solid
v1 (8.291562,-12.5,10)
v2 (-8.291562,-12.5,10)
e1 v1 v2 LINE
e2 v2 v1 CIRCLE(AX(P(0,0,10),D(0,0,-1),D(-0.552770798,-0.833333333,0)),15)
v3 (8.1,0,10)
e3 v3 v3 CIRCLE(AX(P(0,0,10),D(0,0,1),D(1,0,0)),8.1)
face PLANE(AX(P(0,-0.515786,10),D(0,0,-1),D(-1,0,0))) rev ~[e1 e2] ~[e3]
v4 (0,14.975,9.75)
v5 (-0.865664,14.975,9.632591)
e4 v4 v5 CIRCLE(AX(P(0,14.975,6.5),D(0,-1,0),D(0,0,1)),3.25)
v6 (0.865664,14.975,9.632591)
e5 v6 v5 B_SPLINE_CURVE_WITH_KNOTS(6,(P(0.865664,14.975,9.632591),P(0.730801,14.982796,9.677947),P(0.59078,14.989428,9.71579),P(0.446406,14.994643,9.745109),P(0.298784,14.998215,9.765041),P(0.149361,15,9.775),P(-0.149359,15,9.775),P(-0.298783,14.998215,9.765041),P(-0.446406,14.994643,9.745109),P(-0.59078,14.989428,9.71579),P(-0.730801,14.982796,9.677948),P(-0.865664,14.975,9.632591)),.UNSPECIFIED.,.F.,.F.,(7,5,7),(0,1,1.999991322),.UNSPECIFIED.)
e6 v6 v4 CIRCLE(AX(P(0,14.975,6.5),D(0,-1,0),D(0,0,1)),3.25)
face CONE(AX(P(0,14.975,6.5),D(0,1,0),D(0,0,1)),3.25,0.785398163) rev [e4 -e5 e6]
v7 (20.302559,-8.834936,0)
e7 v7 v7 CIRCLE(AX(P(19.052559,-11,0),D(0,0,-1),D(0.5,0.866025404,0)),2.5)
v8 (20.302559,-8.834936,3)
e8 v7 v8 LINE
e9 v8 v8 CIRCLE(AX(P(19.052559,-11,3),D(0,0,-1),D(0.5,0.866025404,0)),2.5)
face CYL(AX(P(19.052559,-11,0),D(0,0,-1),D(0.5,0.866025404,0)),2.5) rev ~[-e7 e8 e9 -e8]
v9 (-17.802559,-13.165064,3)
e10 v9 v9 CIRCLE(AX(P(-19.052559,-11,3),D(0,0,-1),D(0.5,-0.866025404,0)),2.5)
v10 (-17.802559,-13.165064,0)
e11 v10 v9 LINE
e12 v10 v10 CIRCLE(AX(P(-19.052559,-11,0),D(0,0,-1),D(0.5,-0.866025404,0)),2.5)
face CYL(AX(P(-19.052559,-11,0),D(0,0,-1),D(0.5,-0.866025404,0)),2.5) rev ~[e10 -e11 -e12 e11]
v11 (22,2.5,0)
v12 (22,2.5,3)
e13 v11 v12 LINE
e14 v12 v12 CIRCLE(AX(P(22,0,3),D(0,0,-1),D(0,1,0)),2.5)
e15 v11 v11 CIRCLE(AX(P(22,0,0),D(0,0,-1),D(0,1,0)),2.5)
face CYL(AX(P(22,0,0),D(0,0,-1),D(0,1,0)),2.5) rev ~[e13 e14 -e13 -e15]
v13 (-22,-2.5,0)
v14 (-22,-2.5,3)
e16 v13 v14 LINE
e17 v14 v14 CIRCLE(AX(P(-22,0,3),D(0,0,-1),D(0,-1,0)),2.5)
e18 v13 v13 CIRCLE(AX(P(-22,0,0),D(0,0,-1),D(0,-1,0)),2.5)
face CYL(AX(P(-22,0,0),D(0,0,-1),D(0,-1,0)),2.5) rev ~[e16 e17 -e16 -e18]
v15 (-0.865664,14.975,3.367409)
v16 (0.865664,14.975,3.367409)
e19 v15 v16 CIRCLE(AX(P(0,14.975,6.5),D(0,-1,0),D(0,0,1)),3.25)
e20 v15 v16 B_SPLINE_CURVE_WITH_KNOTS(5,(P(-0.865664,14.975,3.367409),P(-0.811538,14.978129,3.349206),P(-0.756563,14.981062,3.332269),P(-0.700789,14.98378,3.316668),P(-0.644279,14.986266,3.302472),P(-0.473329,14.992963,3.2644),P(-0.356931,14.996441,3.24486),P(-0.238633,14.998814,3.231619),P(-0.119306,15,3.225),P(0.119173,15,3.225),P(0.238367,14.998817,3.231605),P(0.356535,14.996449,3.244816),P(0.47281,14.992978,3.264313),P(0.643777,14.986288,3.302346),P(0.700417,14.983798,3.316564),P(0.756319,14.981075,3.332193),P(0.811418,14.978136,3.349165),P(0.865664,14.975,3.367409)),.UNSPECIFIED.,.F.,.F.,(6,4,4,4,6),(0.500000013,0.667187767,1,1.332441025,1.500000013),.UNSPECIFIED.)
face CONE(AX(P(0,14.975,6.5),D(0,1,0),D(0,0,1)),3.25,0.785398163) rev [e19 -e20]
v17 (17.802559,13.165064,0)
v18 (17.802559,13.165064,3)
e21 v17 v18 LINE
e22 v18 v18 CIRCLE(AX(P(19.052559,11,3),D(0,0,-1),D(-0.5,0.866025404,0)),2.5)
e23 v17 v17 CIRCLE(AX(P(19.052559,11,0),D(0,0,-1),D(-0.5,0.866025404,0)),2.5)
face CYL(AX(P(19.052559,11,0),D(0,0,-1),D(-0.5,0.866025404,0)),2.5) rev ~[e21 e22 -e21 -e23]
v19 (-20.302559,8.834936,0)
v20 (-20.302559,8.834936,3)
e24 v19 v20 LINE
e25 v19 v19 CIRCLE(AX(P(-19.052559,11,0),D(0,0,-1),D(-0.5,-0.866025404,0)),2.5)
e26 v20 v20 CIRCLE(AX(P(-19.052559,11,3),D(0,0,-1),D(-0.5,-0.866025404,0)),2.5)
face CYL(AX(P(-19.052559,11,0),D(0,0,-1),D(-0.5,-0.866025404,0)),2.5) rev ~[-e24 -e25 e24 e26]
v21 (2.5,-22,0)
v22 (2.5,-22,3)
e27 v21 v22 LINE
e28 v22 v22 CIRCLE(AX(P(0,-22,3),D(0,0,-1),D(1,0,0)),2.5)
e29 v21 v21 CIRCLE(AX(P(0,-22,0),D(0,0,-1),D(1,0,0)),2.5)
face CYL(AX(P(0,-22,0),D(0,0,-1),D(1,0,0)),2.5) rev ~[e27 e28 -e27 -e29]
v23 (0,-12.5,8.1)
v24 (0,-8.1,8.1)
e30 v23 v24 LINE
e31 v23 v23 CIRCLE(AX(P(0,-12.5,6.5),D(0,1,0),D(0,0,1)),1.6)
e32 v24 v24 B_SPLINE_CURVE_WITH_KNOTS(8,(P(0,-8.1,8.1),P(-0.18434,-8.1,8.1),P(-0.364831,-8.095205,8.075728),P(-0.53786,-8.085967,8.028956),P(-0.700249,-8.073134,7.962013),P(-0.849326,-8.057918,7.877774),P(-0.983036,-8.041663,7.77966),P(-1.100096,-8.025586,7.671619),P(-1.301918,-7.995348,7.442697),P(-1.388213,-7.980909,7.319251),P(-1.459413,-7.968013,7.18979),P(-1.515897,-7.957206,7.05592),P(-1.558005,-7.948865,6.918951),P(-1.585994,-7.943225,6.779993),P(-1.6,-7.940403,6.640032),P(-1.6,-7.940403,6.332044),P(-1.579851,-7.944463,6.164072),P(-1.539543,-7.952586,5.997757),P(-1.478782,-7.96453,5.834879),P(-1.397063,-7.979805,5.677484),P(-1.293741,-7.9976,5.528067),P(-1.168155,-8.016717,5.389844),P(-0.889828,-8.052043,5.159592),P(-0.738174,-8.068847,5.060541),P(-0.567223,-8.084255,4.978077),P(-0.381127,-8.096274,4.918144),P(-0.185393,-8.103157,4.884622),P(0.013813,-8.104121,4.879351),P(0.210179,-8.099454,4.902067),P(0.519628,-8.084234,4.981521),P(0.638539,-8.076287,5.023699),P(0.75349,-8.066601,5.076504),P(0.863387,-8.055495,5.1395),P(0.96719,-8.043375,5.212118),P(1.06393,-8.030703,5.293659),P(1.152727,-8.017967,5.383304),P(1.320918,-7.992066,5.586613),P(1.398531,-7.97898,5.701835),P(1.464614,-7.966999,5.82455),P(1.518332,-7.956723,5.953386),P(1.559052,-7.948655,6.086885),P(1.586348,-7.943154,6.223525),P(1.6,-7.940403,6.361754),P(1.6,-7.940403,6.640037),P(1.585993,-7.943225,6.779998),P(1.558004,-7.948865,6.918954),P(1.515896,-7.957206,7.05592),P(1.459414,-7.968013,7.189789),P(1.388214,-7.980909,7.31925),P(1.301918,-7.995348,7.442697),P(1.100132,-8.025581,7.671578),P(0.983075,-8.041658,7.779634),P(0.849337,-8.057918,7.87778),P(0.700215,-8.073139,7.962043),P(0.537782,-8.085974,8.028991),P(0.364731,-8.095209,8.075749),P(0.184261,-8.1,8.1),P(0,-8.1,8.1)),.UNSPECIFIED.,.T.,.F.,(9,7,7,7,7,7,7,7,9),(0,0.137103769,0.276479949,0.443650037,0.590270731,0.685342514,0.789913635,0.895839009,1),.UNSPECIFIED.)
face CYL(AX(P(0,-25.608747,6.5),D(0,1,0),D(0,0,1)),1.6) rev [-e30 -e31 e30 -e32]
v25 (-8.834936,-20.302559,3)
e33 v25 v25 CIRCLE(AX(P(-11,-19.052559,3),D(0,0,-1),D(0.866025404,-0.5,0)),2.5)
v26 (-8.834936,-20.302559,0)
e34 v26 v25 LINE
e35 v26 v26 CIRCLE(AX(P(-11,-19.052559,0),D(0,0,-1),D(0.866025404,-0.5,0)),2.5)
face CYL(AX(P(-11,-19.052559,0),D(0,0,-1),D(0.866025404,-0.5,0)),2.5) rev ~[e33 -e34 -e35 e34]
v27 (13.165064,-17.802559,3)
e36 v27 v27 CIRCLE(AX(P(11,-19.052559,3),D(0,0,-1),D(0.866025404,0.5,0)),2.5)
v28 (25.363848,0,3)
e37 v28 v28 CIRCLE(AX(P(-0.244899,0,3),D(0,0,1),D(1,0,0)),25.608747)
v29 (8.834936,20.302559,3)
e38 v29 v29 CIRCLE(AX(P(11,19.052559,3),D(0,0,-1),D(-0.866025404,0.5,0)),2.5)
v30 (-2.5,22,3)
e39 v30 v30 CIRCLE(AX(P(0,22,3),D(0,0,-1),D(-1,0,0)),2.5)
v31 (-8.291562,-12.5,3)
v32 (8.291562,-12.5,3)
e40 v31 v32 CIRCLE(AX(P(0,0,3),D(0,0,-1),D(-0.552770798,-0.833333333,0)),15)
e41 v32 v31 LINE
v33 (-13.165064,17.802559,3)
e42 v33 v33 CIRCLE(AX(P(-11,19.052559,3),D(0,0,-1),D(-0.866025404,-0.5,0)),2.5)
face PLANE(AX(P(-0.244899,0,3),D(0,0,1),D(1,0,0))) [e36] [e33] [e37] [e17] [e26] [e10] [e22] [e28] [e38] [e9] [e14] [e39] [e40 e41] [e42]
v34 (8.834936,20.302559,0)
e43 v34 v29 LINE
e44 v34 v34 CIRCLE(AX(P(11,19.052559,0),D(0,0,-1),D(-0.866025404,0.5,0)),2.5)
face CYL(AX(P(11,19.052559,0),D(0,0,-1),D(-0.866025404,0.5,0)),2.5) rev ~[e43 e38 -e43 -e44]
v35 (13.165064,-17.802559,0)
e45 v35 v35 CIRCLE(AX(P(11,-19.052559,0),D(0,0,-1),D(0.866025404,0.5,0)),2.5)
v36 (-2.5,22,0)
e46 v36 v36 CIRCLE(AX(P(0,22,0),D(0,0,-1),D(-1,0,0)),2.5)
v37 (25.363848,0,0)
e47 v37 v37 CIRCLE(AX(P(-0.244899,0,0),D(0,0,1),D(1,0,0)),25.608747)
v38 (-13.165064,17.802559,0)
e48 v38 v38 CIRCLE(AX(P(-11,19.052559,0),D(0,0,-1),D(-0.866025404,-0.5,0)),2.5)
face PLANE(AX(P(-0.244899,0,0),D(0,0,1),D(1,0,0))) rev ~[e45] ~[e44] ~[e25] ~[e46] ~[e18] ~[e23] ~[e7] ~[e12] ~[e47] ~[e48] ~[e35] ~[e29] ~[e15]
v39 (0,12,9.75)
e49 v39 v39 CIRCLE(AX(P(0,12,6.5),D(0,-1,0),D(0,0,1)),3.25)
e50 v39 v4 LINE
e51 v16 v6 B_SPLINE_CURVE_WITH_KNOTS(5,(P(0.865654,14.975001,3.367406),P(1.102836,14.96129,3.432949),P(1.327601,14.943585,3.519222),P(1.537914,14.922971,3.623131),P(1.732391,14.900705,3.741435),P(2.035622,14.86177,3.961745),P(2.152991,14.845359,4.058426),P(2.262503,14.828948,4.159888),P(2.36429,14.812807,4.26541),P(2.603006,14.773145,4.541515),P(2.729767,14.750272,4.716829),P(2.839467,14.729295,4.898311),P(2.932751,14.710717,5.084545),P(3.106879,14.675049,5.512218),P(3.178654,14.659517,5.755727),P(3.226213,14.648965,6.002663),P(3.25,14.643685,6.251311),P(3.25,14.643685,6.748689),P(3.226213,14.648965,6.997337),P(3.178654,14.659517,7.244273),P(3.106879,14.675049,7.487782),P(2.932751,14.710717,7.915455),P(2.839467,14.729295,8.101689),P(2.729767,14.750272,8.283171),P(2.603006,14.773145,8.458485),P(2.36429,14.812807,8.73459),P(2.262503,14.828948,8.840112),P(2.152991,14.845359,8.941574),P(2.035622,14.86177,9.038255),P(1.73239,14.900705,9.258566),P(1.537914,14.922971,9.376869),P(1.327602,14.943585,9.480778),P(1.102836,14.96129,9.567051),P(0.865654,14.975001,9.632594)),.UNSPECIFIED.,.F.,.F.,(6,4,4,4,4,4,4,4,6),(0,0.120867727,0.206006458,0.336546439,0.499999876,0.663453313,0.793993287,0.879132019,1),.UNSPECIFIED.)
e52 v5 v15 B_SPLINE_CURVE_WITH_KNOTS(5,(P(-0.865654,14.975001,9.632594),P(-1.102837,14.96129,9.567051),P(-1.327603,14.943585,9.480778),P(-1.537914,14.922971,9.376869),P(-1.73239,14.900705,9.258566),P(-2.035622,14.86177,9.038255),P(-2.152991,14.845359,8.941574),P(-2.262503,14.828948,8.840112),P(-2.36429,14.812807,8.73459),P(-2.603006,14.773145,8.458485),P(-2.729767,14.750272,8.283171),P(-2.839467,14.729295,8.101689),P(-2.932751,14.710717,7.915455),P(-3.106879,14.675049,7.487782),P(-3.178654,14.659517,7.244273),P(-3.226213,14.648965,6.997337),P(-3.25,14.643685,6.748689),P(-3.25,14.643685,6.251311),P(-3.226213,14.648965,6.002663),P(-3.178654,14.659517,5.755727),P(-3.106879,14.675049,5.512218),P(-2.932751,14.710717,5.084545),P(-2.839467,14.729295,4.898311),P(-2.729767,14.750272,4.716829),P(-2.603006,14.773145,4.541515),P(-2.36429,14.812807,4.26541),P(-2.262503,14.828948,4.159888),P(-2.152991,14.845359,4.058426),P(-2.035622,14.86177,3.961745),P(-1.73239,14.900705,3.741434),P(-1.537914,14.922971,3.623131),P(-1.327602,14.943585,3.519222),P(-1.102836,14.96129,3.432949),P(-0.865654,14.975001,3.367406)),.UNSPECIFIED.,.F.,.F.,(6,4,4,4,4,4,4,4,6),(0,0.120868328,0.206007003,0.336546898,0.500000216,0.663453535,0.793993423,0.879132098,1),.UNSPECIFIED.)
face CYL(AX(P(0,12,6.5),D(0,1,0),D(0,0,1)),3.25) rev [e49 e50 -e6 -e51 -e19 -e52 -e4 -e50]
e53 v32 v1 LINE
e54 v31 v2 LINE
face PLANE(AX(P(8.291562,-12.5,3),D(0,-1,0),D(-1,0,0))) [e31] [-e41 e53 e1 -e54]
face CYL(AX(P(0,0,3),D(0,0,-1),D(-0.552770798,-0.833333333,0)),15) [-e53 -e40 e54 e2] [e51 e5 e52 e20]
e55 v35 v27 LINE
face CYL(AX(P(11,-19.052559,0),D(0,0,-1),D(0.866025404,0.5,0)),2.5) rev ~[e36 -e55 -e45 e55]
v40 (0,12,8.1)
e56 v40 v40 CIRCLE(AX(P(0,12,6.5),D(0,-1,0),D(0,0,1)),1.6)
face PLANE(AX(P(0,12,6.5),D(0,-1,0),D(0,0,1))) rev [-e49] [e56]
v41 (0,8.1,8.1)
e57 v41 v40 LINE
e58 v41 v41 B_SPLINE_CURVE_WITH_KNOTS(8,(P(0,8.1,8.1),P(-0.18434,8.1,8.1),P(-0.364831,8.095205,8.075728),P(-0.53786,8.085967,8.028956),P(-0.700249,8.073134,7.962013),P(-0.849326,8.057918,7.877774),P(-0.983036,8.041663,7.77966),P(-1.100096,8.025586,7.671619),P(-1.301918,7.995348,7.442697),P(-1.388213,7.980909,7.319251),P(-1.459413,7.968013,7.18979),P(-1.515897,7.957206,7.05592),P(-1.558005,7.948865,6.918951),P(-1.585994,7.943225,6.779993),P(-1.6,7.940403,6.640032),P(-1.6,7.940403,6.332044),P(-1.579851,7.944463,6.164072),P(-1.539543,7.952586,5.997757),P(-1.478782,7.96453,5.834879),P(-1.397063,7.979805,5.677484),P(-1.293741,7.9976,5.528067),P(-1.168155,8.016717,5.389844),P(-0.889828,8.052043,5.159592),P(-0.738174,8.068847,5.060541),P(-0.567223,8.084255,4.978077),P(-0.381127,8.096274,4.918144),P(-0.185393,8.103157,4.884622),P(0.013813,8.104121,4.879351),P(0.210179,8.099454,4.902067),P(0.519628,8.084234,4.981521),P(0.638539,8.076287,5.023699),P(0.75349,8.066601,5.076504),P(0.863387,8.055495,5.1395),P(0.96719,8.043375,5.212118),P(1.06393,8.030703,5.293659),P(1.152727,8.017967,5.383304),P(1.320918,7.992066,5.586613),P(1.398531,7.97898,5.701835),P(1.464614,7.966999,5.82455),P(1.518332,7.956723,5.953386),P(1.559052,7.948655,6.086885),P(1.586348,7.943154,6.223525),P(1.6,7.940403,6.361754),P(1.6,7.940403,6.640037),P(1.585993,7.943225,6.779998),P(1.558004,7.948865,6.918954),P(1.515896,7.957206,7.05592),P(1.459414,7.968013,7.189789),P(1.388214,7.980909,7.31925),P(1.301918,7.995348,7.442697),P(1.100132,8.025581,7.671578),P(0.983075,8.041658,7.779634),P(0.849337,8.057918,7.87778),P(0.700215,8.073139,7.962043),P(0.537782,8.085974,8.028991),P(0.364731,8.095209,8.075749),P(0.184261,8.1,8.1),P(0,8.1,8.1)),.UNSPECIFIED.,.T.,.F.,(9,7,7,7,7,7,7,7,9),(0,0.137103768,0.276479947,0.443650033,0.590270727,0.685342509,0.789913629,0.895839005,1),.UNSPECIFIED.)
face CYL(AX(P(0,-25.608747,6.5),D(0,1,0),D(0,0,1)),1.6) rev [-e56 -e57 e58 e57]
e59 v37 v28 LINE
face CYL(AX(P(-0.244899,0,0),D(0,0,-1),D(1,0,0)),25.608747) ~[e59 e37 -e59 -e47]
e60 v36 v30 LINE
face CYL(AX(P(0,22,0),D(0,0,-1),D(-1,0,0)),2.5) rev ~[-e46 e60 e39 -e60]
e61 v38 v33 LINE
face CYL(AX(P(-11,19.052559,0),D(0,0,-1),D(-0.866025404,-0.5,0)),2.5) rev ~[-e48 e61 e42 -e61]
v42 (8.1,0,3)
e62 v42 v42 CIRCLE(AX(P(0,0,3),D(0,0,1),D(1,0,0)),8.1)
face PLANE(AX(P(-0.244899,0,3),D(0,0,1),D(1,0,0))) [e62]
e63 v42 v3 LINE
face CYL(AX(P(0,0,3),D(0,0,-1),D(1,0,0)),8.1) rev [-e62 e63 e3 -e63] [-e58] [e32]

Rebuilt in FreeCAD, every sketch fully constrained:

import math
import FreeCAD as App
import Part
import Sketcher
Q = App.Units.Quantity


def add_polygon(sketch, points):
    """Adds a closed chain of lines whose ends are joined by coincident constraints."""
    first, n = sketch.GeometryCount, len(points)
    for a, b in zip(points, points[1:] + points[:1]):
        sketch.addGeometry(Part.LineSegment(App.Vector(*a, 0), App.Vector(*b, 0)), False)
    for i in range(n):
        sketch.addConstraint(Sketcher.Constraint("Coincident", first + i, 2, first + (i + 1) % n, 1))

doc = App.newDocument("Part")
body = doc.addObject("PartDesign::Body", "Body")

sketch1 = body.newObject("Sketcher::SketchObject", "Sketch")
sketch1.AttachmentSupport = (doc.getObject("XY_Plane"), [""])
sketch1.MapMode = "FlatFace"
sketch1.addGeometry(Part.Circle(App.Vector(0, 0, 0), App.Vector(0, 0, 1), 26), False)
sketch1.addConstraint([
    Sketcher.Constraint("PointOnObject", 0, 3, -1),
    Sketcher.Constraint("Diameter", 0, Q("51.217493 mm")),
    Sketcher.Constraint("DistanceX", 0, 3, -1, 1, Q("0.244899 mm")),
])
pad1 = body.newObject("PartDesign::Pad", "Pad")
pad1.Profile = sketch1
pad1.Length = 3

sketch2 = body.newObject("Sketcher::SketchObject", "Sketch001")
sketch2.AttachmentSupport = (doc.getObject("XY_Plane"), [""])
sketch2.MapMode = "FlatFace"
sketch2.AttachmentOffset = App.Placement(App.Vector(0, 0, 3), App.Rotation())
sketch2.addGeometry([
    Part.LineSegment(App.Vector(-8, -12, 0), App.Vector(8, -12, 0)),
    Part.ArcOfCircle(Part.Circle(App.Vector(0, 0, 0), App.Vector(0, 0, 1), 15), math.radians(-56), math.radians(236)),
    Part.Circle(App.Vector(0, 0, 0), App.Vector(0, 0, 1), 8),
], False)
sketch2.addConstraint([
    Sketcher.Constraint("Coincident", 0, 1, 1, 2),
    Sketcher.Constraint("Coincident", 1, 1, 0, 2),
    Sketcher.Constraint("Horizontal", 0),
    Sketcher.Constraint("Coincident", 1, 3, -1, 1),
    Sketcher.Constraint("Coincident", 2, 3, -1, 1),
    Sketcher.Constraint("Radius", 1, Q("15 mm")),
    Sketcher.Constraint("Diameter", 2, Q("16.2 mm")),
    Sketcher.Constraint("DistanceY", 0, 1, -1, 1, Q("12.5 mm")),
])
pad2 = body.newObject("PartDesign::Pad", "Pad001")
pad2.Profile = sketch2
pad2.Length = 7

sketch3 = body.newObject("Sketcher::SketchObject", "Sketch002")
sketch3.AttachmentSupport = (doc.getObject("YZ_Plane"), [""])
sketch3.MapMode = "FlatFace"
add_polygon(sketch3, [(-25.609, 6.5), (15, 6.5), (15, 9.775), (14.975, 9.75), (12, 9.75), (12, 8.1), (-25.609, 8.1)])
sketch3.addGeometry(Part.LineSegment(App.Vector(15, 6.5, 0), App.Vector(-25.609, 6.5, 0)), True)
sketch3.addConstraint([
    Sketcher.Constraint("Horizontal", 0),
    Sketcher.Constraint("Vertical", 1),
    Sketcher.Constraint("Horizontal", 3),
    Sketcher.Constraint("Vertical", 4),
    Sketcher.Constraint("Horizontal", 5),
    Sketcher.Constraint("Vertical", 6),
    Sketcher.Constraint("Horizontal", 7),
    Sketcher.Constraint("Coincident", 7, 1, 0, 2),
    Sketcher.Constraint("Vertical", 5, 2, 7, 2),
    Sketcher.Constraint("Angle", 2, Q("-135 deg")),
    Sketcher.Constraint("DistanceY", 6, 2, 6, 1, Q("1.6 mm")),
    Sketcher.Constraint("DistanceX", -1, 1, 0, 2, Q("15 mm")),
    Sketcher.Constraint("DistanceX", -1, 1, 3, 2, Q("12 mm")),
    Sketcher.Constraint("DistanceY", 4, 2, 4, 1, Q("1.65 mm")),
    Sketcher.Constraint("DistanceY", -1, 1, 0, 2, Q("6.5 mm")),
    Sketcher.Constraint("DistanceX", 3, 2, 3, 1, Q("2.975 mm")),
    Sketcher.Constraint("DistanceX", 0, 1, 0, 2, Q("40.608747 mm")),
])
groove = body.newObject("PartDesign::Groove", "Groove")
groove.Profile = sketch3
groove.ReferenceAxis = (sketch3, ["Axis0"])
groove.Angle = 360

sketch4 = body.newObject("Sketcher::SketchObject", "Sketch003")
sketch4.AttachmentSupport = (doc.getObject("XY_Plane"), [""])
sketch4.MapMode = "FlatFace"
sketch4.addGeometry(Part.Circle(App.Vector(0, 22, 0), App.Vector(0, 0, 1), 2.5), False)
sketch4.addConstraint([
    Sketcher.Constraint("PointOnObject", 0, 3, -2),
    Sketcher.Constraint("Diameter", 0, Q("5 mm")),
    Sketcher.Constraint("DistanceY", -1, 1, 0, 3, Q("22 mm")),
])
pocket1 = body.newObject("PartDesign::Pocket", "Pocket")
pocket1.Profile = sketch4
pocket1.Length = 10
pocket1.Reversed = True
doc.recompute()

polarpattern = body.newObject("PartDesign::PolarPattern", "PolarPattern")
polarpattern.Originals = [pocket1]
polarpattern.Axis = (doc.getObject("Z_Axis"), [""])
polarpattern.Angle = 360
polarpattern.Occurrences = 12
body.Tip = polarpattern

doc.recompute()
